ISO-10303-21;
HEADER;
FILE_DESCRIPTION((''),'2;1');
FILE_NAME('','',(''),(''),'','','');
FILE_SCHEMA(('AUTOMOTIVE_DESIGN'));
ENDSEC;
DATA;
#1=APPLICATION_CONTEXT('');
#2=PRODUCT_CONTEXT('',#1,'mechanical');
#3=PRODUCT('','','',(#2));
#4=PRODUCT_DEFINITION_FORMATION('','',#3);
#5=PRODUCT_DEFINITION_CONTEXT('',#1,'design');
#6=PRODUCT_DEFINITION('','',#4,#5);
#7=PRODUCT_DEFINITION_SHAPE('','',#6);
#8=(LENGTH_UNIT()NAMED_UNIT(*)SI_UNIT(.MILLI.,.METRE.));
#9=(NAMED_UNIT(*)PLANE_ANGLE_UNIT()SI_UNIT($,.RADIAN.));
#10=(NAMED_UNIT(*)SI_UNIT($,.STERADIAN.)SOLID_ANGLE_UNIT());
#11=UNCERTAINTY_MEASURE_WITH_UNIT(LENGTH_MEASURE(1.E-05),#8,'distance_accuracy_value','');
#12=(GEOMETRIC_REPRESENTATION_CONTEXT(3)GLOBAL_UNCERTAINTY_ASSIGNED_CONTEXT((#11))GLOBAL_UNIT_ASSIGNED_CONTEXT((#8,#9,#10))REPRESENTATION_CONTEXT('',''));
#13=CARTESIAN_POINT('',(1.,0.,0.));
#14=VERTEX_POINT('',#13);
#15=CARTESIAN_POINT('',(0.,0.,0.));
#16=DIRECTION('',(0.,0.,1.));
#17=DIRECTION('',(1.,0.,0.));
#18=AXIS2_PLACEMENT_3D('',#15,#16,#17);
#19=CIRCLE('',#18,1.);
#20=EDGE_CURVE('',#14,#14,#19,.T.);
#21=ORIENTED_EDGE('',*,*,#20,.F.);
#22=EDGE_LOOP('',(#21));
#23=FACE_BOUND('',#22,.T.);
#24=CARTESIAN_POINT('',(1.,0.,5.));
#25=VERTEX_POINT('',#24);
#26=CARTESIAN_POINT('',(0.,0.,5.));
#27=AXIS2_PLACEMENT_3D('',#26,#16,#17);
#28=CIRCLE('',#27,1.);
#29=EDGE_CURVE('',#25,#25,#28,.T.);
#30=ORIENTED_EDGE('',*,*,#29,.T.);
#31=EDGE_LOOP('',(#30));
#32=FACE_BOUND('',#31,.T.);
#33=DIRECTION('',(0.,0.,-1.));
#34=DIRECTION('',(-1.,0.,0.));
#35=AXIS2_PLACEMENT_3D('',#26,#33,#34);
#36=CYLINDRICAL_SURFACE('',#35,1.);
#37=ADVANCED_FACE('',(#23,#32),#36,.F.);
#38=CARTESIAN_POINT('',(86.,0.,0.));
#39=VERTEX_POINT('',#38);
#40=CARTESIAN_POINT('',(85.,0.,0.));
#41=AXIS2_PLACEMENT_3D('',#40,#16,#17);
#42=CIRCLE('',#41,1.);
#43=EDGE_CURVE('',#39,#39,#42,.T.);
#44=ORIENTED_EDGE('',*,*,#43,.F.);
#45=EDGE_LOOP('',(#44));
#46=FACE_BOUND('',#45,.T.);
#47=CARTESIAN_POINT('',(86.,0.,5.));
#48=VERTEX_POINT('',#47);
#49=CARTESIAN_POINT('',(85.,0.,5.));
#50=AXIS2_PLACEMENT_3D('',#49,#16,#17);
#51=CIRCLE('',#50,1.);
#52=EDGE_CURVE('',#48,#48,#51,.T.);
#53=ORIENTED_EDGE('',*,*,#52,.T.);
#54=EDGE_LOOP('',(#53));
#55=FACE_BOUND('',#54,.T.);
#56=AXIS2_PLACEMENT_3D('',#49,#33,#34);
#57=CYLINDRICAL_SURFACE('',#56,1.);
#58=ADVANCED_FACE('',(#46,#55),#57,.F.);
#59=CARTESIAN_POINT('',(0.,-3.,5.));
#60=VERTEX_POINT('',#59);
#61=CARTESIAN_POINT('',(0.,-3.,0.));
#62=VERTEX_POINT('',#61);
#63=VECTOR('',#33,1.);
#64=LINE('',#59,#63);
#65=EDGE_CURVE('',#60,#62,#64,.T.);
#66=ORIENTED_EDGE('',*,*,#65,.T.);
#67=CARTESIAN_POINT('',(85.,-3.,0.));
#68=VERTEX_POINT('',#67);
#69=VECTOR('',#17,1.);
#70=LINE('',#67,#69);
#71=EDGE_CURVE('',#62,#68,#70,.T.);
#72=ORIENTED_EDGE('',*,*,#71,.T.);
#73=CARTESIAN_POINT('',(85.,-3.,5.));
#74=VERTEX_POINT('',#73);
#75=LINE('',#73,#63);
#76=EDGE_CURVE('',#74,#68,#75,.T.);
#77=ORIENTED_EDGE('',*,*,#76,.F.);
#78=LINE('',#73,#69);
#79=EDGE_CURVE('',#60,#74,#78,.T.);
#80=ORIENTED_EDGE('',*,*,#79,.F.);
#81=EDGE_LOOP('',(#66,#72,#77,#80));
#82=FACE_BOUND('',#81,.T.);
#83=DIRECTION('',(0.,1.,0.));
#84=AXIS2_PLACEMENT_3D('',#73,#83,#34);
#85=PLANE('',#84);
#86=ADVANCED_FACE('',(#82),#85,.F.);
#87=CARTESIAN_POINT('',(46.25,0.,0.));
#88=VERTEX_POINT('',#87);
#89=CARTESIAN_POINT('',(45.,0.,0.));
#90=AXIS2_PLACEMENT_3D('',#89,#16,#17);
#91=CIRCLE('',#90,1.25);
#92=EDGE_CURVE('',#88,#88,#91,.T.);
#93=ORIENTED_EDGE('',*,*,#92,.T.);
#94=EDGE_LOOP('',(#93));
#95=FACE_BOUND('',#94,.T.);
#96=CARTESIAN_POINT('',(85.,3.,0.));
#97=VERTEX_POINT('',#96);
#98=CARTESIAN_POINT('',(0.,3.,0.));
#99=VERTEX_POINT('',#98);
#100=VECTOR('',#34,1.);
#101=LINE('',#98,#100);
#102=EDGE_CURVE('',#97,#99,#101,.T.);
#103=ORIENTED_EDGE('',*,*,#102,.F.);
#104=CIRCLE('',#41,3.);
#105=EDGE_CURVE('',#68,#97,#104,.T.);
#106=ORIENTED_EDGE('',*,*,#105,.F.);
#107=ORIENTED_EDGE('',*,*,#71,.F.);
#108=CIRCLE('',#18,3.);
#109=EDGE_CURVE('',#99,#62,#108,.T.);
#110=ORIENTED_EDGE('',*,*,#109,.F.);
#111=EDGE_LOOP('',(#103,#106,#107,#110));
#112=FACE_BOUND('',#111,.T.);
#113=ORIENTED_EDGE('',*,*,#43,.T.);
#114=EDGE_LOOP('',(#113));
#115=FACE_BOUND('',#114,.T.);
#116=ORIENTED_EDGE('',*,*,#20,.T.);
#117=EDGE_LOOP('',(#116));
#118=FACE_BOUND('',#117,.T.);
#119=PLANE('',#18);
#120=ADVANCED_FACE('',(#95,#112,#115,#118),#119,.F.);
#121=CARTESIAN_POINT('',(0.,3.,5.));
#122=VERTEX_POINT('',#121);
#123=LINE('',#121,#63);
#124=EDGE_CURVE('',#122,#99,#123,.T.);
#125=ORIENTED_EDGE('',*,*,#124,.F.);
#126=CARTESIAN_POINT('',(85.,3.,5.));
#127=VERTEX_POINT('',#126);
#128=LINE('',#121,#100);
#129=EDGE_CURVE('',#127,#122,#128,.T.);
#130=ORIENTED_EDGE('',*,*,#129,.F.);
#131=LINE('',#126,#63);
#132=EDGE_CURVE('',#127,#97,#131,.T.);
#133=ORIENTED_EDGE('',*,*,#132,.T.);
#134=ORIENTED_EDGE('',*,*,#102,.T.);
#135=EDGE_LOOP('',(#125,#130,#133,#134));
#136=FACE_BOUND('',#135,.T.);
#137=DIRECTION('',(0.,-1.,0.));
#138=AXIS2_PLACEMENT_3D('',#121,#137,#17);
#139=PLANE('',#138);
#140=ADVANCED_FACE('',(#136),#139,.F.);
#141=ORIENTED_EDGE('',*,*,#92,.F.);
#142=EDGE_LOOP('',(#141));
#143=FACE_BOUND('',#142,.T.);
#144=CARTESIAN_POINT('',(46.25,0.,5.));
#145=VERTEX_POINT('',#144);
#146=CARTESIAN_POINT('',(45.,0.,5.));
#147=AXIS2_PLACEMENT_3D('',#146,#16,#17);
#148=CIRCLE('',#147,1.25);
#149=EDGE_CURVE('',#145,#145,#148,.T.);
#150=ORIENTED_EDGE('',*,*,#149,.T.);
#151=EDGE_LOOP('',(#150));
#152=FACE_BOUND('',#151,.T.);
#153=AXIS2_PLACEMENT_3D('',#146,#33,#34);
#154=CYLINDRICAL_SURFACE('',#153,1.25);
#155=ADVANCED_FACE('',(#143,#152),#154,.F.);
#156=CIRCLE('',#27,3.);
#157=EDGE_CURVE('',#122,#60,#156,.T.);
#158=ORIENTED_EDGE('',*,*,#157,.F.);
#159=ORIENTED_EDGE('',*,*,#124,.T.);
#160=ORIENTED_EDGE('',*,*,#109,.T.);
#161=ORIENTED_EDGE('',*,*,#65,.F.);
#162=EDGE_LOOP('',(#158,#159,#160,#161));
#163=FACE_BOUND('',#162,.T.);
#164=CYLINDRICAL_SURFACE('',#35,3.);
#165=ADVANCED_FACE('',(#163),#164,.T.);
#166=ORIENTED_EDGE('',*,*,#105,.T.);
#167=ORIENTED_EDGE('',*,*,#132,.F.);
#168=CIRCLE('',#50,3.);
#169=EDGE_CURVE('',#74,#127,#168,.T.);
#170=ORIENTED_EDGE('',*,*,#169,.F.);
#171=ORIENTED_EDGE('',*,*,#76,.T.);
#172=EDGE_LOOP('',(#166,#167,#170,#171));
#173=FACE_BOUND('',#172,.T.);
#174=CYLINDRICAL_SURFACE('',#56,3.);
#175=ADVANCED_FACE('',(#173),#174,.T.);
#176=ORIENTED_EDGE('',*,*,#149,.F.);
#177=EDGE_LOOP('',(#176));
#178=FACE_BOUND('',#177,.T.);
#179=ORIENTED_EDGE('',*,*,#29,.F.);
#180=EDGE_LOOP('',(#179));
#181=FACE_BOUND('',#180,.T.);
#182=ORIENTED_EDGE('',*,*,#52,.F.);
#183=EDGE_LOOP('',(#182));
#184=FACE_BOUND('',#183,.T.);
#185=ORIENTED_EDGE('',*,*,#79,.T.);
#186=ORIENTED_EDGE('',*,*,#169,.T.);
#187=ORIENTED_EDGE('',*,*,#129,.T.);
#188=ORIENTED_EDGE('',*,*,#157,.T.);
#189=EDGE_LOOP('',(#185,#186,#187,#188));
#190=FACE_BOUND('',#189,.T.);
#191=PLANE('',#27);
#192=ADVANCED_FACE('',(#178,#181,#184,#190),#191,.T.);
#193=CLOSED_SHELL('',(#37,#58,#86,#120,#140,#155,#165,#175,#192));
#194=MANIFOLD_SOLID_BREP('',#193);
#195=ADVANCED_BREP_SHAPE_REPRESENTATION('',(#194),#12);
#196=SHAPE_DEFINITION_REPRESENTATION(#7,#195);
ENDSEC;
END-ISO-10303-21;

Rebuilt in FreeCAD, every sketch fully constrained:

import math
import FreeCAD as App
import Part
import Sketcher
from FreeCAD import Vector

doc = App.newDocument("Part")
params = doc.addObject("Spreadsheet::Sheet", "Params")
for row, (alias, value) in enumerate([
    ("sketch1_diameter", "2 mm"),
    ("sketch1_radius", "3 mm"),
    ("sketch1_diameter2", "2.5 mm"),
    ("sketch1_width", "85 mm"),
    ("pad1_length", "5 mm"),
], start=1):
    params.set(f"A{row}", alias)
    params.set(f"B{row}", "=" + value)
    params.setAlias(f"B{row}", alias)

body = doc.addObject("PartDesign::Body", "Body")

# Sketch on XY plane
sketch1 = body.newObject("Sketcher::SketchObject", "Sketch")
sketch1.AttachmentSupport = (doc.getObject("XY_Plane"), [""])
sketch1.MapMode = "FlatFace"
sketch1.addGeometry(Part.LineSegment(Vector(85, 3, 0), Vector(0, 3, 0)), False)
sketch1.addGeometry(Part.ArcOfCircle(Part.Circle(Vector(0, 0, 0), Vector(0, 0, 1), 3), math.radians(90), math.radians(270)), False)
sketch1.addGeometry(Part.LineSegment(Vector(0, -3, 0), Vector(85, -3, 0)), False)
sketch1.addGeometry(Part.ArcOfCircle(Part.Circle(Vector(85, 0, 0), Vector(0, 0, 1), 3), math.radians(-90), math.radians(90)), False)
sketch1.addGeometry(Part.Circle(Vector(85, 0, 0), Vector(0, 0, 1), 1), False)
sketch1.addGeometry(Part.Circle(Vector(45, 0, 0), Vector(0, 0, 1), 1.2), False)
sketch1.addGeometry(Part.Circle(Vector(0, 0, 0), Vector(0, 0, 1), 1), False)
sketch1.addConstraint(Sketcher.Constraint("Tangent", 0, 2, 1, 1))
sketch1.addConstraint(Sketcher.Constraint("Tangent", 1, 2, 2, 1))
sketch1.addConstraint(Sketcher.Constraint("Tangent", 2, 2, 3, 1))
sketch1.addConstraint(Sketcher.Constraint("Tangent", 3, 2, 0, 1))
sketch1.addConstraint(Sketcher.Constraint("Horizontal", 0))
sketch1.addConstraint(Sketcher.Constraint("Horizontal", 2))
sketch1.addConstraint(Sketcher.Constraint("Coincident", 1, 3, -1, 1))
sketch1.addConstraint(Sketcher.Constraint("Coincident", 6, 3, -1, 1))
sketch1.addConstraint(Sketcher.Constraint("Coincident", 4, 3, 3, 3))
sketch1.addConstraint(Sketcher.Constraint("Equal", 4, 6))
sketch1.addConstraint(Sketcher.Constraint("PointOnObject", 5, 3, -1))
sketch1.addConstraint(Sketcher.Constraint("Diameter", 4, 2.0))
sketch1.addConstraint(Sketcher.Constraint("Radius", 1, 3.0))
sketch1.addConstraint(Sketcher.Constraint("Diameter", 5, 2.5))
sketch1.addConstraint(Sketcher.Constraint("DistanceX", 0, 2, 0, 1, 85.0))
sketch1.addConstraint(Sketcher.Constraint("DistanceX", -1, 1, 5, 3, 45.0))
sketch1.setExpression("Constraints[11]", "Params.sketch1_diameter")
sketch1.setExpression("Constraints[12]", "Params.sketch1_radius")
sketch1.setExpression("Constraints[13]", "Params.sketch1_diameter2")
sketch1.setExpression("Constraints[14]", "Params.sketch1_width")
pad1 = body.newObject("PartDesign::Pad", "Pad")
pad1.Profile = sketch1
pad1.setExpression("Length", "Params.pad1_length")

doc.recompute()
